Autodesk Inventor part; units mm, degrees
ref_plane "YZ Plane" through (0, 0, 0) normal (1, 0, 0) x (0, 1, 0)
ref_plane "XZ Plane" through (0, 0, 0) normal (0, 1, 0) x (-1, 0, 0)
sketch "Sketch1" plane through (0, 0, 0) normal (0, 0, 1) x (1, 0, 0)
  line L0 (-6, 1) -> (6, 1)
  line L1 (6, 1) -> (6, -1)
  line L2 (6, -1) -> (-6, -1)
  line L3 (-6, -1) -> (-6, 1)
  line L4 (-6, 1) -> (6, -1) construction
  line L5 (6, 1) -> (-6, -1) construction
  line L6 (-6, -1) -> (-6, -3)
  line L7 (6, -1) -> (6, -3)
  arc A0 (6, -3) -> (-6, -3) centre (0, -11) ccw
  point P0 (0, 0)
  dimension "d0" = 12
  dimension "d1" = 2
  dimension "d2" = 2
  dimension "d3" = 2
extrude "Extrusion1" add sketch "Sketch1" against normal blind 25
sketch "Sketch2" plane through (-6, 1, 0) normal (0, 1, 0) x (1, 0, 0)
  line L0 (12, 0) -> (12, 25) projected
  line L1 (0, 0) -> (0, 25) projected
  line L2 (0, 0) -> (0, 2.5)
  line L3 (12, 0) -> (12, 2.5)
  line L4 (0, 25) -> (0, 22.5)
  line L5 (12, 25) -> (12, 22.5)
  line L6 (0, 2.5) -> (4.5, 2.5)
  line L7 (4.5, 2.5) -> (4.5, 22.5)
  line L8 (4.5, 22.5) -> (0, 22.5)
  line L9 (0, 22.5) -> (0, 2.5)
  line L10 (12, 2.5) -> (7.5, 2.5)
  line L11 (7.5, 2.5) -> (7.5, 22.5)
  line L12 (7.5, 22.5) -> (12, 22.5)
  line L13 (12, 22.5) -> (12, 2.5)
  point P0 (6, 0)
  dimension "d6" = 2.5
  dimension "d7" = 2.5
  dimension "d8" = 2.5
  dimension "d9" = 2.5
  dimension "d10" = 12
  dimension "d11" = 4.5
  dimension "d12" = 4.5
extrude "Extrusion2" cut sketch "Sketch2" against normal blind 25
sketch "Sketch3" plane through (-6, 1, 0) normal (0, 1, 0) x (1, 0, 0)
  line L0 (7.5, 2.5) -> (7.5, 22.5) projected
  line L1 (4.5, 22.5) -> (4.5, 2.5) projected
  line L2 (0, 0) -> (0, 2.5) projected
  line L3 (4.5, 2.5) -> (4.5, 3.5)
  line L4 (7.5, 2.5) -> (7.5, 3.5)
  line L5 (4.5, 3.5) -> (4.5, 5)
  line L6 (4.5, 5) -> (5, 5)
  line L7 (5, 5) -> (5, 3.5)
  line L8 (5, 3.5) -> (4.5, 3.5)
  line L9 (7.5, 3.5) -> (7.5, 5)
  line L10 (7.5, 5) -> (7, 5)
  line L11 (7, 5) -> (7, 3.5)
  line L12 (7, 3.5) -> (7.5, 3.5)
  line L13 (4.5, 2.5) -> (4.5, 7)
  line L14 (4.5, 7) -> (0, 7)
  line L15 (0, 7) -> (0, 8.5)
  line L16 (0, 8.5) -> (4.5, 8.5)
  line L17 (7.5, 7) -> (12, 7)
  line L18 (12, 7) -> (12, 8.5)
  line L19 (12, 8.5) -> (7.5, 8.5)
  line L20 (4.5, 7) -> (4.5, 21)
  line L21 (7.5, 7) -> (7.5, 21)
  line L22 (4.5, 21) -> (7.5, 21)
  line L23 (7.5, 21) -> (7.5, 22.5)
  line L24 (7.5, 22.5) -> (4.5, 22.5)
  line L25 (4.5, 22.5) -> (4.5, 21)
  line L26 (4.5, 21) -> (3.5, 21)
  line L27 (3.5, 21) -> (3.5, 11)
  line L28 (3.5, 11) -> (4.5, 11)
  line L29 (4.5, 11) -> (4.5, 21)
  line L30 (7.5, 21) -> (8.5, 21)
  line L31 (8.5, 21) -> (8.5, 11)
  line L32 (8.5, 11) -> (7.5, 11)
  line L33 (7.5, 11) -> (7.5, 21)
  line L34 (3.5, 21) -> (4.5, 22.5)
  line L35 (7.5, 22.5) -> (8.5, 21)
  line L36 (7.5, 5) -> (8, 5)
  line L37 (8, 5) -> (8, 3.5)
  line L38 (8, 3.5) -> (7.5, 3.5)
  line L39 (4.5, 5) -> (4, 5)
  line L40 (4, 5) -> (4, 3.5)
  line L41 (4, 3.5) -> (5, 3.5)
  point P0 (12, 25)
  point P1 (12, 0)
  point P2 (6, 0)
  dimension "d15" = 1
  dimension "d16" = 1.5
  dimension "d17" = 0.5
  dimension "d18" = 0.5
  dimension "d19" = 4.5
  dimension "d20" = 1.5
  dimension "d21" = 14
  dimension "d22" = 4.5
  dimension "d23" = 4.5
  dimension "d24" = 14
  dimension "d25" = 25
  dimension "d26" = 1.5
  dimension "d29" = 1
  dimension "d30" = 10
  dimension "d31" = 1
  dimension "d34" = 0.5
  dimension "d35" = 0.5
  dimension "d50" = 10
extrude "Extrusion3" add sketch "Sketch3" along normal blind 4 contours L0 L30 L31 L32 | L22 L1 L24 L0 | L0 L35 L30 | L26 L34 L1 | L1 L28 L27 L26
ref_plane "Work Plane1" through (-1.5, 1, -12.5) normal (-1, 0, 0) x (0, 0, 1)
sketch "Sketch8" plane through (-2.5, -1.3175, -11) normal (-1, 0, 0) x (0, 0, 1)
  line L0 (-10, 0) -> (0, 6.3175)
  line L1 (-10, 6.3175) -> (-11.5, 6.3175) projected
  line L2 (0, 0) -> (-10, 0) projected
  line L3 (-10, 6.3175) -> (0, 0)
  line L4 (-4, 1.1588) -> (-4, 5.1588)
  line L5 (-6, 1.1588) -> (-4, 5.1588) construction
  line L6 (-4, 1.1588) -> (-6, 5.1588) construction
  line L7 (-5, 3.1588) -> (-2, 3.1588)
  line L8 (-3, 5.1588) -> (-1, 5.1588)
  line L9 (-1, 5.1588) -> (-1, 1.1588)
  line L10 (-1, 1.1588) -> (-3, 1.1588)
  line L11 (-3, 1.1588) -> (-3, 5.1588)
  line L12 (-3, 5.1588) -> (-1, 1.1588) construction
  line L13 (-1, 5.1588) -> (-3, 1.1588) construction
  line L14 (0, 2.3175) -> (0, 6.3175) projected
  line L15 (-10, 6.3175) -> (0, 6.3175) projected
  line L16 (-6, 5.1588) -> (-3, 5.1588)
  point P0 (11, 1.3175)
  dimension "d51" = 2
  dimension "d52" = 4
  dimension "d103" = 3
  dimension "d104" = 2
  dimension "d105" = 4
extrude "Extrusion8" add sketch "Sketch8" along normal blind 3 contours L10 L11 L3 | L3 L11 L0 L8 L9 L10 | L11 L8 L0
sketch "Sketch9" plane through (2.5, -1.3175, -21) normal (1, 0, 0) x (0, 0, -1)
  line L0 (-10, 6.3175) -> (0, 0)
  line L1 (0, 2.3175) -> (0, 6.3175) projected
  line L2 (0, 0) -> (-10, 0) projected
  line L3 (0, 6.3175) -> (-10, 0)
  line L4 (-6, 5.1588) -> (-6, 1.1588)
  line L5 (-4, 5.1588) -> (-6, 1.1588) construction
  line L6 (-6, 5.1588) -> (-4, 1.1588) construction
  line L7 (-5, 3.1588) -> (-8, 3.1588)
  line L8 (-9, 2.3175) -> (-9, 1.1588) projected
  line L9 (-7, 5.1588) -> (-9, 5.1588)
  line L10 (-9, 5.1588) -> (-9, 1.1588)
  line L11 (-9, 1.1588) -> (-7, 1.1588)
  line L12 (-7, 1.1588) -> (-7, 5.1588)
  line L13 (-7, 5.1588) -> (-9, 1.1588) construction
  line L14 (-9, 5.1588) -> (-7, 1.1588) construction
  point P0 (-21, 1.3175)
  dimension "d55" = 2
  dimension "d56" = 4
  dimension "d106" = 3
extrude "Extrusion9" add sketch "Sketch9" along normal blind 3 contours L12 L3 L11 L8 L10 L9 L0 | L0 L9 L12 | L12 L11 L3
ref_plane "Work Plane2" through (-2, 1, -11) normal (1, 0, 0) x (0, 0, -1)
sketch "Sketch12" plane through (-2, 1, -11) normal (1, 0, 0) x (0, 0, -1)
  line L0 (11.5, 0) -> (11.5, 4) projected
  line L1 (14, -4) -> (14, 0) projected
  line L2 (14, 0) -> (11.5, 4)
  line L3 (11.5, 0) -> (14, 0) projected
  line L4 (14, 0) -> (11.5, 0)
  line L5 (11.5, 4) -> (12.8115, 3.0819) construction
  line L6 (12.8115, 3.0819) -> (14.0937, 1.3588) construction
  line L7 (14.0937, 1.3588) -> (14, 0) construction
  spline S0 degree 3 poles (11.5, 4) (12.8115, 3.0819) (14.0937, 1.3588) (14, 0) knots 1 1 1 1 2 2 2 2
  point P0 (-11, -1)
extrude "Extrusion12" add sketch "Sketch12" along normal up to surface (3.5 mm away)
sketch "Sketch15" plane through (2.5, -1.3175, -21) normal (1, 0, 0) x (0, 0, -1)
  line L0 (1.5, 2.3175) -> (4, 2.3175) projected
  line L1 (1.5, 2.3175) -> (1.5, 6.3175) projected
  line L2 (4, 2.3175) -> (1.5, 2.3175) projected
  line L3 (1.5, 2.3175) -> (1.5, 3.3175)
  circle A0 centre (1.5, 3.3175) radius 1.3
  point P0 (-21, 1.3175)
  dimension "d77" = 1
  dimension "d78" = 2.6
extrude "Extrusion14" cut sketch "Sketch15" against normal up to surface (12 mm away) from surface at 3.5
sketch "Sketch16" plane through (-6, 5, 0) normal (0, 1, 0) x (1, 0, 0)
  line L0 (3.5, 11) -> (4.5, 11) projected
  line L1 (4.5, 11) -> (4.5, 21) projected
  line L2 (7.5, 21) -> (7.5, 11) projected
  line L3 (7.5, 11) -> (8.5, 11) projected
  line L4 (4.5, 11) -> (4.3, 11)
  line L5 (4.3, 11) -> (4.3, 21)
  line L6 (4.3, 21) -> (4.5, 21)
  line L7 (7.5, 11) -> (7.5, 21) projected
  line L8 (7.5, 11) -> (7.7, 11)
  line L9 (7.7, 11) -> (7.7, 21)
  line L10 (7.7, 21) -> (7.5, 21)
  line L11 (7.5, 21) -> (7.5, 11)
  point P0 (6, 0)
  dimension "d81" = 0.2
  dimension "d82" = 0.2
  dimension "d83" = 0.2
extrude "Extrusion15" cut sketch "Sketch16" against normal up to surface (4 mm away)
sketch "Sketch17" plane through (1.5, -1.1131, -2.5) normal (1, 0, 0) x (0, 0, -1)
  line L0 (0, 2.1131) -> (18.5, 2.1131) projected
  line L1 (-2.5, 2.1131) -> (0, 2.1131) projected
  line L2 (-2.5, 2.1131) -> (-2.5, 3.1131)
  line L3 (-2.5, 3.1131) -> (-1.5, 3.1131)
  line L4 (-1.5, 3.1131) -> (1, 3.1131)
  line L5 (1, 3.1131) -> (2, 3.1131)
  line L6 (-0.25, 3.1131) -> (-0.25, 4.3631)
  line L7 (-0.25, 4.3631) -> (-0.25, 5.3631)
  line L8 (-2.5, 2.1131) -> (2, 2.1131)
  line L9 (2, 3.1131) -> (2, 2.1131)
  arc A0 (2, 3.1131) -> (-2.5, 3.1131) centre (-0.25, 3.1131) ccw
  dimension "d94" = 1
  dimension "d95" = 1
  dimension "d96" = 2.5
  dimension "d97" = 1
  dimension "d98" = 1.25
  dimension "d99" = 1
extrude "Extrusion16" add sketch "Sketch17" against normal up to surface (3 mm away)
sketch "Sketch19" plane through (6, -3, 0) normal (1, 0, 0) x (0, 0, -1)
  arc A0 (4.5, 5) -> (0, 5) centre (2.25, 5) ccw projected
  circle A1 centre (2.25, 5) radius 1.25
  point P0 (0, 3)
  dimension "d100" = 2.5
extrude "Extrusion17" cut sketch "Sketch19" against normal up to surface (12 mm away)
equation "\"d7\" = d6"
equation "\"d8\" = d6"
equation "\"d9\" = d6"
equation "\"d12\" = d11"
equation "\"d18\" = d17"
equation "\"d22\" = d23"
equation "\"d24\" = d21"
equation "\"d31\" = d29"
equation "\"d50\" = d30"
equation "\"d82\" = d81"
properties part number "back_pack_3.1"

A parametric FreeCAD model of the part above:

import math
import FreeCAD as App
import Part
import Sketcher
from FreeCAD import Vector

doc = App.newDocument("Part")
body = doc.addObject("PartDesign::Body", "Body")

sketch1 = body.newObject("Sketcher::SketchObject", "Sketch")
sketch1.AttachmentSupport = (doc.getObject("XY_Plane"), [""])
sketch1.MapMode = "FlatFace"
sketch1.addGeometry([
    Part.LineSegment(Vector(6, 1, 0), Vector(-6, 1, 0)),
    Part.LineSegment(Vector(-6, 1, 0), Vector(-6, -3, 0)),
    Part.ArcOfCircle(Part.Circle(Vector(0, -11, 0), Vector(0, 0, 1), 10), math.radians(53), math.radians(127)),
    Part.LineSegment(Vector(6, -3, 0), Vector(6, 1, 0)),
], False)
sketch1.addConstraint([
    Sketcher.Constraint("Coincident", 0, 2, 1, 1),
    Sketcher.Constraint("Coincident", 1, 2, 2, 2),
    Sketcher.Constraint("Coincident", 2, 1, 3, 1),
    Sketcher.Constraint("Coincident", 3, 2, 0, 1),
    Sketcher.Constraint("Horizontal", 0),
    Sketcher.Constraint("Vertical", 1),
    Sketcher.Constraint("Vertical", 3),
    Sketcher.Constraint("Symmetric", 1, 2, 2, 1, -2),
    Sketcher.Constraint("DistanceX", 0, 2, 0, 1, 12.0),
    Sketcher.Constraint("Radius", 2, 10.0),
    Sketcher.Constraint("DistanceY", 2, 3, 0, 2, 12.0),
    Sketcher.Constraint("DistanceY", 2, 3, -1, 1, 11.0),
])
pad1 = body.newObject("PartDesign::Pad", "Pad")
pad1.Profile = sketch1
pad1.Length = 25
pad1.Reversed = True

sketch2 = body.newObject("Sketcher::SketchObject", "Sketch001")
sketch2.AttachmentSupport = (doc.getObject("XZ_Plane"), [""])
sketch2.MapMode = "FlatFace"
sketch2.AttachmentOffset = App.Placement(Vector(0, 0, -1), App.Rotation())
sketch2.addGeometry([
    Part.LineSegment(Vector(1.5, -2.5, 0), Vector(6, -2.5, 0)),
    Part.LineSegment(Vector(6, -2.5, 0), Vector(6, -22.5, 0)),
    Part.LineSegment(Vector(6, -22.5, 0), Vector(1.5, -22.5, 0)),
    Part.LineSegment(Vector(1.5, -22.5, 0), Vector(1.5, -2.5, 0)),
    Part.LineSegment(Vector(-6, -22.5, 0), Vector(-6, -2.5, 0)),
    Part.LineSegment(Vector(-6, -2.5, 0), Vector(-1.5, -2.5, 0)),
    Part.LineSegment(Vector(-1.5, -2.5, 0), Vector(-1.5, -22.5, 0)),
    Part.LineSegment(Vector(-1.5, -22.5, 0), Vector(-6, -22.5, 0)),
], False)
sketch2.addConstraint([
    Sketcher.Constraint("Coincident", 0, 2, 1, 1),
    Sketcher.Constraint("Coincident", 1, 2, 2, 1),
    Sketcher.Constraint("Coincident", 2, 2, 3, 1),
    Sketcher.Constraint("Coincident", 3, 2, 0, 1),
    Sketcher.Constraint("Coincident", 4, 2, 5, 1),
    Sketcher.Constraint("Coincident", 5, 2, 6, 1),
    Sketcher.Constraint("Coincident", 6, 2, 7, 1),
    Sketcher.Constraint("Coincident", 7, 2, 4, 1),
    Sketcher.Constraint("Horizontal", 0),
    Sketcher.Constraint("Vertical", 1),
    Sketcher.Constraint("Horizontal", 2),
    Sketcher.Constraint("Vertical", 3),
    Sketcher.Constraint("Vertical", 4),
    Sketcher.Constraint("Horizontal", 5),
    Sketcher.Constraint("Vertical", 6),
    Sketcher.Constraint("Horizontal", 7),
    Sketcher.Constraint("Symmetric", 0, 2, 4, 2, -2),
    Sketcher.Constraint("Symmetric", 2, 2, 6, 2, -2),
    Sketcher.Constraint("DistanceX", 0, 1, 0, 2, 4.5),
    Sketcher.Constraint("DistanceX", 4, 2, 0, 2, 12.0),
    Sketcher.Constraint("DistanceY", 0, 2, -1, 1, 2.5),
    Sketcher.Constraint("DistanceY", 1, 2, 1, 1, 20.0),
])
pocket1 = body.newObject("PartDesign::Pocket", "Pocket")
pocket1.Profile = sketch2
pocket1.Length = 25
pocket1.Reversed = True

sketch3 = body.newObject("Sketcher::SketchObject", "Sketch002")
sketch3.AttachmentSupport = (doc.getObject("XZ_Plane"), [""])
sketch3.MapMode = "FlatFace"
sketch3.AttachmentOffset = App.Placement(Vector(0, 0, -1), App.Rotation())
sketch3.addGeometry([
    Part.LineSegment(Vector(1.5, -21, 0), Vector(1.5, -11, 0)),
    Part.LineSegment(Vector(1.5, -11, 0), Vector(2.5, -11, 0)),
    Part.LineSegment(Vector(2.5, -11, 0), Vector(2.5, -21, 0)),
    Part.LineSegment(Vector(2.5, -21, 0), Vector(1.5, -22.5, 0)),
    Part.LineSegment(Vector(1.5, -22.5, 0), Vector(-1.5, -22.5, 0)),
    Part.LineSegment(Vector(-1.5, -22.5, 0), Vector(-2.5, -21, 0)),
    Part.LineSegment(Vector(-2.5, -21, 0), Vector(-2.5, -11, 0)),
    Part.LineSegment(Vector(-2.5, -11, 0), Vector(-1.5, -11, 0)),
    Part.LineSegment(Vector(-1.5, -11, 0), Vector(-1.5, -21, 0)),
    Part.LineSegment(Vector(-1.5, -21, 0), Vector(1.5, -21, 0)),
], False)
sketch3.addConstraint([
    Sketcher.Constraint("Coincident", 0, 2, 1, 1),
    Sketcher.Constraint("Coincident", 1, 2, 2, 1),
    Sketcher.Constraint("Coincident", 2, 2, 3, 1),
    Sketcher.Constraint("Coincident", 3, 2, 4, 1),
    Sketcher.Constraint("Coincident", 4, 2, 5, 1),
    Sketcher.Constraint("Coincident", 5, 2, 6, 1),
    Sketcher.Constraint("Coincident", 6, 2, 7, 1),
    Sketcher.Constraint("Coincident", 7, 2, 8, 1),
    Sketcher.Constraint("Coincident", 8, 2, 9, 1),
    Sketcher.Constraint("Coincident", 9, 2, 0, 1),
    Sketcher.Constraint("Vertical", 0),
    Sketcher.Constraint("Horizontal", 1),
    Sketcher.Constraint("Vertical", 2),
    Sketcher.Constraint("Horizontal", 4),
    Sketcher.Constraint("Vertical", 6),
    Sketcher.Constraint("Horizontal", 7),
    Sketcher.Constraint("Vertical", 8),
    Sketcher.Constraint("Horizontal", 9),
    Sketcher.Constraint("Symmetric", 2, 2, 5, 2, -2),
    Sketcher.Constraint("Symmetric", 0, 2, 7, 2, -2),
    Sketcher.Constraint("Horizontal", 5, 2, 8, 2),
    Sketcher.Constraint("Vertical", 0, 2, 3, 2),
    Sketcher.Constraint("Vertical", 4, 2, 7, 2),
    Sketcher.Constraint("DistanceX", 1, 1, 1, 2, 1.0),
    Sketcher.Constraint("DistanceY", 0, 1, 0, 2, 10.0),
    Sketcher.Constraint("DistanceX", -1, 1, 0, 2, 1.5),
    Sketcher.Constraint("DistanceY", 3, 2, 2, 2, 1.5),
    Sketcher.Constraint("DistanceY", 0, 2, -1, 1, 11.0),
])
pad2 = body.newObject("PartDesign::Pad", "Pad001")
pad2.Profile = sketch3
pad2.Length = 4
pad2.Reversed = True

sketch4 = body.newObject("Sketcher::SketchObject", "Sketch003")
sketch4.AttachmentSupport = (doc.getObject("YZ_Plane"), [""])
sketch4.MapMode = "FlatFace"
sketch4.AttachmentOffset = App.Placement(Vector(0, 0, -2.5), App.Rotation())
sketch4.addGeometry([
    Part.LineSegment(Vector(-0.2, -14, 0), Vector(-0.2, -12, 0)),
    Part.LineSegment(Vector(-0.2, -12, 0), Vector(3.8, -12, 0)),
    Part.LineSegment(Vector(3.8, -12, 0), Vector(3.8, -14, 0)),
    Part.LineSegment(Vector(3.8, -14, 0), Vector(-0.2, -14, 0)),
], False)
sketch4.addConstraint([
    Sketcher.Constraint("Coincident", 0, 2, 1, 1),
    Sketcher.Constraint("Coincident", 1, 2, 2, 1),
    Sketcher.Constraint("Coincident", 2, 2, 3, 1),
    Sketcher.Constraint("Coincident", 3, 2, 0, 1),
    Sketcher.Constraint("Vertical", 0),
    Sketcher.Constraint("Horizontal", 1),
    Sketcher.Constraint("Vertical", 2),
    Sketcher.Constraint("Horizontal", 3),
    Sketcher.Constraint("DistanceX", 1, 1, 1, 2, 4.0),
    Sketcher.Constraint("DistanceY", 0, 1, 0, 2, 2.0),
    Sketcher.Constraint("DistanceY", 0, 2, -1, 1, 12.0),
    Sketcher.Constraint("DistanceX", 0, 2, -1, 1, 0.1587),
])
pad3 = body.newObject("PartDesign::Pad", "Pad002")
pad3.Profile = sketch4
pad3.Length = 3
pad3.Reversed = True

sketch5 = body.newObject("Sketcher::SketchObject", "Sketch004")
sketch5.AttachmentSupport = (doc.getObject("YZ_Plane"), [""])
sketch5.MapMode = "FlatFace"
sketch5.AttachmentOffset = App.Placement(Vector(0, 0, 2.5), App.Rotation())
sketch5.addGeometry([
    Part.LineSegment(Vector(3.8, -14, 0), Vector(3.8, -12, 0)),
    Part.LineSegment(Vector(3.8, -12, 0), Vector(-0.2, -12, 0)),
    Part.LineSegment(Vector(-0.2, -12, 0), Vector(-0.2, -14, 0)),
    Part.LineSegment(Vector(-0.2, -14, 0), Vector(3.8, -14, 0)),
], False)
sketch5.addConstraint([
    Sketcher.Constraint("Coincident", 0, 2, 1, 1),
    Sketcher.Constraint("Coincident", 1, 2, 2, 1),
    Sketcher.Constraint("Coincident", 2, 2, 3, 1),
    Sketcher.Constraint("Coincident", 3, 2, 0, 1),
    Sketcher.Constraint("Vertical", 0),
    Sketcher.Constraint("Horizontal", 1),
    Sketcher.Constraint("Vertical", 2),
    Sketcher.Constraint("Horizontal", 3),
    Sketcher.Constraint("DistanceX", 1, 2, 1, 1, 4.0),
    Sketcher.Constraint("DistanceY", 0, 1, 0, 2, 2.0),
    Sketcher.Constraint("DistanceY", 0, 2, -1, 1, 12.0),
    Sketcher.Constraint("DistanceX", -1, 1, 0, 2, 3.8413),
])
pad4 = body.newObject("PartDesign::Pad", "Pad003")
pad4.Profile = sketch5
pad4.Length = 3

sketch6 = body.newObject("Sketcher::SketchObject", "Sketch005")
sketch6.AttachmentSupport = (doc.getObject("YZ_Plane"), [""])
sketch6.MapMode = "FlatFace"
sketch6.AttachmentOffset = App.Placement(Vector(0, 0, -2), App.Rotation())
sketch6.addGeometry([
    Part.LineSegment(Vector(5, -22.5, 0), Vector(1, -22.5, 0)),
    Part.LineSegment(Vector(1, -22.5, 0), Vector(1, -25, 0)),
    Part.BSplineCurve([Vector(5, -22.5, 0), Vector(4.0819, -23.8115, 0), Vector(2.3588, -25.0937, 0), Vector(1, -25, 0)], [4, 4], [1, 2], False, 3, [1, 1, 1, 1], False),
], False)
sketch6.addConstraint([
    Sketcher.Constraint("Block", 2),
    Sketcher.Constraint("Coincident", 0, 2, 1, 1),
    Sketcher.Constraint("Coincident", 1, 2, 2, 2),
    Sketcher.Constraint("Coincident", 2, 1, 0, 1),
    Sketcher.Constraint("Horizontal", 0),
    Sketcher.Constraint("Vertical", 1),
])
pad5 = body.newObject("PartDesign::Pad", "Pad004")
pad5.Profile = sketch6
pad5.Length = 3.5

sketch7 = body.newObject("Sketcher::SketchObject", "Sketch006")
sketch7.AttachmentSupport = (doc.getObject("YZ_Plane"), [""])
sketch7.MapMode = "FlatFace"
sketch7.AttachmentOffset = App.Placement(Vector(0, 0, 6), App.Rotation())
sketch7.addGeometry(Part.Circle(Vector(2, -22.5, 0), Vector(0, 0, 1), 1.3), False)
sketch7.addConstraint([
    Sketcher.Constraint("Diameter", 0, 2.6),
    Sketcher.Constraint("DistanceX", -1, 1, 0, 3, 2.0),
    Sketcher.Constraint("DistanceY", 0, 3, -1, 1, 22.5),
])
pocket2 = body.newObject("PartDesign::Pocket", "Pocket001")
pocket2.Profile = sketch7
pocket2.Length = 12

sketch8 = body.newObject("Sketcher::SketchObject", "Sketch007")
sketch8.AttachmentSupport = (doc.getObject("XZ_Plane"), [""])
sketch8.MapMode = "FlatFace"
sketch8.AttachmentOffset = App.Placement(Vector(0, 0, -5), App.Rotation())
sketch8.addGeometry([
    Part.LineSegment(Vector(-1.7, -21, 0), Vector(-1.7, -11, 0)),
    Part.LineSegment(Vector(-1.7, -11, 0), Vector(-1.5, -11, 0)),
    Part.LineSegment(Vector(-1.5, -11, 0), Vector(-1.5, -21, 0)),
    Part.LineSegment(Vector(-1.5, -21, 0), Vector(-1.7, -21, 0)),
    Part.LineSegment(Vector(1.7, -21, 0), Vector(1.5, -21, 0)),
    Part.LineSegment(Vector(1.5, -21, 0), Vector(1.5, -11, 0)),
    Part.LineSegment(Vector(1.5, -11, 0), Vector(1.7, -11, 0)),
    Part.LineSegment(Vector(1.7, -11, 0), Vector(1.7, -21, 0)),
], False)
sketch8.addConstraint([
    Sketcher.Constraint("Coincident", 0, 2, 1, 1),
    Sketcher.Constraint("Coincident", 1, 2, 2, 1),
    Sketcher.Constraint("Coincident", 2, 2, 3, 1),
    Sketcher.Constraint("Coincident", 3, 2, 0, 1),
    Sketcher.Constraint("Coincident", 4, 2, 5, 1),
    Sketcher.Constraint("Coincident", 5, 2, 6, 1),
    Sketcher.Constraint("Coincident", 6, 2, 7, 1),
    Sketcher.Constraint("Coincident", 7, 2, 4, 1),
    Sketcher.Constraint("Vertical", 0),
    Sketcher.Constraint("Horizontal", 1),
    Sketcher.Constraint("Vertical", 2),
    Sketcher.Constraint("Horizontal", 3),
    Sketcher.Constraint("Horizontal", 4),
    Sketcher.Constraint("Vertical", 5),
    Sketcher.Constraint("Horizontal", 6),
    Sketcher.Constraint("Vertical", 7),
    Sketcher.Constraint("Symmetric", 2, 2, 4, 2, -2),
    Sketcher.Constraint("Symmetric", 0, 2, 6, 2, -2),
    Sketcher.Constraint("DistanceX", 1, 1, 1, 2, 0.2),
    Sketcher.Constraint("DistanceY", 0, 1, 0, 2, 10.0),
    Sketcher.Constraint("DistanceY", 0, 2, -1, 1, 11.0),
    Sketcher.Constraint("DistanceX", 2, 2, 4, 2, 3.0),
])
pocket3 = body.newObject("PartDesign::Pocket", "Pocket002")
pocket3.Profile = sketch8
pocket3.Length = 4
pocket3.Reversed = True

sketch9 = body.newObject("Sketcher::SketchObject", "Sketch008")
sketch9.AttachmentSupport = (doc.getObject("YZ_Plane"), [""])
sketch9.MapMode = "FlatFace"
sketch9.AttachmentOffset = App.Placement(Vector(0, 0, 1.5), App.Rotation())
sketch9.addGeometry([
    Part.LineSegment(Vector(1, 0, 0), Vector(1, -4.5, 0)),
    Part.LineSegment(Vector(1, -4.5, 0), Vector(2, -4.5, 0)),
    Part.ArcOfCircle(Part.Circle(Vector(2, -2.2, 0), Vector(0, 0, 1), 2.2), math.radians(-90), math.radians(90)),
    Part.LineSegment(Vector(2, 0, 0), Vector(1, 0, 0)),
], False)
sketch9.addConstraint([
    Sketcher.Constraint("Coincident", 0, 2, 1, 1),
    Sketcher.Constraint("Tangent", 1, 2, 2, 1),
    Sketcher.Constraint("Tangent", 2, 2, 3, 1),
    Sketcher.Constraint("Coincident", 3, 2, 0, 1),
    Sketcher.Constraint("Vertical", 0),
    Sketcher.Constraint("Horizontal", 1),
    Sketcher.Constraint("Horizontal", 3),
    Sketcher.Constraint("PointOnObject", 2, 2, -1),
    Sketcher.Constraint("DistanceX", 1, 1, 1, 2, 1.0),
    Sketcher.Constraint("DistanceX", -1, 1, 0, 2, 1.0),
    Sketcher.Constraint("Radius", 2, 2.25),
])
pad6 = body.newObject("PartDesign::Pad", "Pad005")
pad6.Profile = sketch9
pad6.Length = 3
pad6.Reversed = True

sketch10 = body.newObject("Sketcher::SketchObject", "Sketch009")
sketch10.AttachmentSupport = (doc.getObject("YZ_Plane"), [""])
sketch10.MapMode = "FlatFace"
sketch10.AttachmentOffset = App.Placement(Vector(0, 0, 6), App.Rotation())
sketch10.addGeometry(Part.Circle(Vector(2, -2.2, 0), Vector(0, 0, 1), 1.2), False)
sketch10.addConstraint([
    Sketcher.Constraint("Diameter", 0, 2.5),
    Sketcher.Constraint("DistanceX", -1, 1, 0, 3, 2.0),
    Sketcher.Constraint("DistanceY", 0, 3, -1, 1, 2.25),
])
pocket4 = body.newObject("PartDesign::Pocket", "Pocket003")
pocket4.Profile = sketch10
pocket4.Length = 12

doc.recompute()
